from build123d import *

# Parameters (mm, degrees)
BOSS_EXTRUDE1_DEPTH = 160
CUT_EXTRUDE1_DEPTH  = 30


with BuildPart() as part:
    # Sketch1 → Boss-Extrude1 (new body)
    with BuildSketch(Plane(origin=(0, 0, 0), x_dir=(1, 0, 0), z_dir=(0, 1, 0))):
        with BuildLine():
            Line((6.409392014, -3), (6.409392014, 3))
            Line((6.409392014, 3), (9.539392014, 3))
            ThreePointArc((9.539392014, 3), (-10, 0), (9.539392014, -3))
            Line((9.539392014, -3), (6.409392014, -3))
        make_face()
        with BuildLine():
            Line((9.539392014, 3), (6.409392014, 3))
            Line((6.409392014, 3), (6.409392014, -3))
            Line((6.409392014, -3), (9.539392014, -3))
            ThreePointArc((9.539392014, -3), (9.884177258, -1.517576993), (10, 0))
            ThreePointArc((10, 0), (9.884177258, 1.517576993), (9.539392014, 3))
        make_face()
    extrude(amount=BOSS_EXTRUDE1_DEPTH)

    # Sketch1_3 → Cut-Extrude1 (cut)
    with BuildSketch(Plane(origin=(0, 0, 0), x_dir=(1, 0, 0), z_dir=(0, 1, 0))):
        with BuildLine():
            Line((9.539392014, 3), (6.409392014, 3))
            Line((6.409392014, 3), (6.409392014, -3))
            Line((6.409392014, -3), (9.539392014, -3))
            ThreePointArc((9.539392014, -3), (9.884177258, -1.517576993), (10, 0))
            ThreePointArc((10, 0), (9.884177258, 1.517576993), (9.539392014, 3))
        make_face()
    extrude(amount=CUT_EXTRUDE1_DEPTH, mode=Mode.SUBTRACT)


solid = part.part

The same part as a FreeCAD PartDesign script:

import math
import FreeCAD as App
import Part
import Sketcher

doc = App.newDocument("Part")
body = doc.addObject("PartDesign::Body", "Body")

# Sketch on XZ plane
sketch1 = doc.addObject("Sketcher::SketchObject", "Sketch")
body.addObject(sketch1)
sketch1.AttachmentSupport = (doc.XZ_Plane, [""])
sketch1.MapMode = "FlatFace"
sketch1.addGeometry(Part.ArcOfCircle(Part.Circle(App.Vector(0, 0, 0), App.Vector(0, 0, 1), 10), math.radians(17), math.radians(343)), False)
sketch1.addGeometry(Part.ArcOfCircle(Part.Circle(App.Vector(0, 0, 0), App.Vector(0, 0, 1), 10), math.radians(0), math.radians(17.46)), False)
sketch1.addGeometry(Part.ArcOfCircle(Part.Circle(App.Vector(0, 0, 0), App.Vector(0, 0, 1), 10), math.radians(-17.46), math.radians(0)), False)
sketch1.addConstraint(Sketcher.Constraint("Tangent", 0, 1, 1, 2))
sketch1.addConstraint(Sketcher.Constraint("Tangent", 1, 1, 2, 2))
sketch1.addConstraint(Sketcher.Constraint("Tangent", 2, 1, 0, 2))
sketch1.addConstraint(Sketcher.Constraint("Coincident", 0, 3, -1, 1))
sketch1.addConstraint(Sketcher.Constraint("PointOnObject", 1, 1, -1))
sketch1.addConstraint(Sketcher.Constraint("Vertical", 0, 1, 2, 1))
sketch1.addConstraint(Sketcher.Constraint("Radius", 0, 10.0))
sketch1.addConstraint(Sketcher.Constraint("DistanceY", -1, 1, 0, 1, 3.0))
pad1 = doc.addObject("PartDesign::Pad", "Pad")
body.addObject(pad1)
pad1.Profile = sketch1
pad1.Length = 160
pad1.Reversed = True

# Sketch on XZ plane
sketch2 = doc.addObject("Sketcher::SketchObject", "Sketch001")
body.addObject(sketch2)
sketch2.AttachmentSupport = (doc.XZ_Plane, [""])
sketch2.MapMode = "FlatFace"
sketch2.addGeometry(Part.LineSegment(App.Vector(9.5, -3, 0), App.Vector(6.4, -3, 0)), False)
sketch2.addGeometry(Part.LineSegment(App.Vector(6.4, -3, 0), App.Vector(6.4, 3, 0)), False)
sketch2.addGeometry(Part.LineSegment(App.Vector(6.4, 3, 0), App.Vector(9.5, 3, 0)), False)
sketch2.addGeometry(Part.ArcOfCircle(Part.Circle(App.Vector(0, 0, 0), App.Vector(0, 0, 1), 10), math.radians(0), math.radians(17.46)), False)
sketch2.addGeometry(Part.ArcOfCircle(Part.Circle(App.Vector(0, 0, 0), App.Vector(0, 0, 1), 10), math.radians(-17.46), math.radians(0)), False)
sketch2.addConstraint(Sketcher.Constraint("Coincident", 0, 2, 1, 1))
sketch2.addConstraint(Sketcher.Constraint("Coincident", 1, 2, 2, 1))
sketch2.addConstraint(Sketcher.Constraint("Coincident", 2, 2, 3, 2))
sketch2.addConstraint(Sketcher.Constraint("Tangent", 3, 1, 4, 2))
sketch2.addConstraint(Sketcher.Constraint("Coincident", 4, 1, 0, 1))
sketch2.addConstraint(Sketcher.Constraint("Horizontal", 0))
sketch2.addConstraint(Sketcher.Constraint("Vertical", 1))
sketch2.addConstraint(Sketcher.Constraint("Horizontal", 2))
sketch2.addConstraint(Sketcher.Constraint("Coincident", 3, 3, -1, 1))
sketch2.addConstraint(Sketcher.Constraint("Equal", 3, 4))
sketch2.addConstraint(Sketcher.Constraint("PointOnObject", 3, 1, -1))
sketch2.addConstraint(Sketcher.Constraint("Vertical", 2, 2, 4, 1))
sketch2.addConstraint(Sketcher.Constraint("Radius", 3, 10.0))
sketch2.addConstraint(Sketcher.Constraint("DistanceY", 1, 1, 1, 2, 6.0))
sketch2.addConstraint(Sketcher.Constraint("DistanceX", 0, 2, 0, 1, 3.13))
pocket1 = doc.addObject("PartDesign::Pocket", "Pocket")
body.addObject(pocket1)
pocket1.Profile = sketch2
pocket1.Length = 30

doc.recompute()
